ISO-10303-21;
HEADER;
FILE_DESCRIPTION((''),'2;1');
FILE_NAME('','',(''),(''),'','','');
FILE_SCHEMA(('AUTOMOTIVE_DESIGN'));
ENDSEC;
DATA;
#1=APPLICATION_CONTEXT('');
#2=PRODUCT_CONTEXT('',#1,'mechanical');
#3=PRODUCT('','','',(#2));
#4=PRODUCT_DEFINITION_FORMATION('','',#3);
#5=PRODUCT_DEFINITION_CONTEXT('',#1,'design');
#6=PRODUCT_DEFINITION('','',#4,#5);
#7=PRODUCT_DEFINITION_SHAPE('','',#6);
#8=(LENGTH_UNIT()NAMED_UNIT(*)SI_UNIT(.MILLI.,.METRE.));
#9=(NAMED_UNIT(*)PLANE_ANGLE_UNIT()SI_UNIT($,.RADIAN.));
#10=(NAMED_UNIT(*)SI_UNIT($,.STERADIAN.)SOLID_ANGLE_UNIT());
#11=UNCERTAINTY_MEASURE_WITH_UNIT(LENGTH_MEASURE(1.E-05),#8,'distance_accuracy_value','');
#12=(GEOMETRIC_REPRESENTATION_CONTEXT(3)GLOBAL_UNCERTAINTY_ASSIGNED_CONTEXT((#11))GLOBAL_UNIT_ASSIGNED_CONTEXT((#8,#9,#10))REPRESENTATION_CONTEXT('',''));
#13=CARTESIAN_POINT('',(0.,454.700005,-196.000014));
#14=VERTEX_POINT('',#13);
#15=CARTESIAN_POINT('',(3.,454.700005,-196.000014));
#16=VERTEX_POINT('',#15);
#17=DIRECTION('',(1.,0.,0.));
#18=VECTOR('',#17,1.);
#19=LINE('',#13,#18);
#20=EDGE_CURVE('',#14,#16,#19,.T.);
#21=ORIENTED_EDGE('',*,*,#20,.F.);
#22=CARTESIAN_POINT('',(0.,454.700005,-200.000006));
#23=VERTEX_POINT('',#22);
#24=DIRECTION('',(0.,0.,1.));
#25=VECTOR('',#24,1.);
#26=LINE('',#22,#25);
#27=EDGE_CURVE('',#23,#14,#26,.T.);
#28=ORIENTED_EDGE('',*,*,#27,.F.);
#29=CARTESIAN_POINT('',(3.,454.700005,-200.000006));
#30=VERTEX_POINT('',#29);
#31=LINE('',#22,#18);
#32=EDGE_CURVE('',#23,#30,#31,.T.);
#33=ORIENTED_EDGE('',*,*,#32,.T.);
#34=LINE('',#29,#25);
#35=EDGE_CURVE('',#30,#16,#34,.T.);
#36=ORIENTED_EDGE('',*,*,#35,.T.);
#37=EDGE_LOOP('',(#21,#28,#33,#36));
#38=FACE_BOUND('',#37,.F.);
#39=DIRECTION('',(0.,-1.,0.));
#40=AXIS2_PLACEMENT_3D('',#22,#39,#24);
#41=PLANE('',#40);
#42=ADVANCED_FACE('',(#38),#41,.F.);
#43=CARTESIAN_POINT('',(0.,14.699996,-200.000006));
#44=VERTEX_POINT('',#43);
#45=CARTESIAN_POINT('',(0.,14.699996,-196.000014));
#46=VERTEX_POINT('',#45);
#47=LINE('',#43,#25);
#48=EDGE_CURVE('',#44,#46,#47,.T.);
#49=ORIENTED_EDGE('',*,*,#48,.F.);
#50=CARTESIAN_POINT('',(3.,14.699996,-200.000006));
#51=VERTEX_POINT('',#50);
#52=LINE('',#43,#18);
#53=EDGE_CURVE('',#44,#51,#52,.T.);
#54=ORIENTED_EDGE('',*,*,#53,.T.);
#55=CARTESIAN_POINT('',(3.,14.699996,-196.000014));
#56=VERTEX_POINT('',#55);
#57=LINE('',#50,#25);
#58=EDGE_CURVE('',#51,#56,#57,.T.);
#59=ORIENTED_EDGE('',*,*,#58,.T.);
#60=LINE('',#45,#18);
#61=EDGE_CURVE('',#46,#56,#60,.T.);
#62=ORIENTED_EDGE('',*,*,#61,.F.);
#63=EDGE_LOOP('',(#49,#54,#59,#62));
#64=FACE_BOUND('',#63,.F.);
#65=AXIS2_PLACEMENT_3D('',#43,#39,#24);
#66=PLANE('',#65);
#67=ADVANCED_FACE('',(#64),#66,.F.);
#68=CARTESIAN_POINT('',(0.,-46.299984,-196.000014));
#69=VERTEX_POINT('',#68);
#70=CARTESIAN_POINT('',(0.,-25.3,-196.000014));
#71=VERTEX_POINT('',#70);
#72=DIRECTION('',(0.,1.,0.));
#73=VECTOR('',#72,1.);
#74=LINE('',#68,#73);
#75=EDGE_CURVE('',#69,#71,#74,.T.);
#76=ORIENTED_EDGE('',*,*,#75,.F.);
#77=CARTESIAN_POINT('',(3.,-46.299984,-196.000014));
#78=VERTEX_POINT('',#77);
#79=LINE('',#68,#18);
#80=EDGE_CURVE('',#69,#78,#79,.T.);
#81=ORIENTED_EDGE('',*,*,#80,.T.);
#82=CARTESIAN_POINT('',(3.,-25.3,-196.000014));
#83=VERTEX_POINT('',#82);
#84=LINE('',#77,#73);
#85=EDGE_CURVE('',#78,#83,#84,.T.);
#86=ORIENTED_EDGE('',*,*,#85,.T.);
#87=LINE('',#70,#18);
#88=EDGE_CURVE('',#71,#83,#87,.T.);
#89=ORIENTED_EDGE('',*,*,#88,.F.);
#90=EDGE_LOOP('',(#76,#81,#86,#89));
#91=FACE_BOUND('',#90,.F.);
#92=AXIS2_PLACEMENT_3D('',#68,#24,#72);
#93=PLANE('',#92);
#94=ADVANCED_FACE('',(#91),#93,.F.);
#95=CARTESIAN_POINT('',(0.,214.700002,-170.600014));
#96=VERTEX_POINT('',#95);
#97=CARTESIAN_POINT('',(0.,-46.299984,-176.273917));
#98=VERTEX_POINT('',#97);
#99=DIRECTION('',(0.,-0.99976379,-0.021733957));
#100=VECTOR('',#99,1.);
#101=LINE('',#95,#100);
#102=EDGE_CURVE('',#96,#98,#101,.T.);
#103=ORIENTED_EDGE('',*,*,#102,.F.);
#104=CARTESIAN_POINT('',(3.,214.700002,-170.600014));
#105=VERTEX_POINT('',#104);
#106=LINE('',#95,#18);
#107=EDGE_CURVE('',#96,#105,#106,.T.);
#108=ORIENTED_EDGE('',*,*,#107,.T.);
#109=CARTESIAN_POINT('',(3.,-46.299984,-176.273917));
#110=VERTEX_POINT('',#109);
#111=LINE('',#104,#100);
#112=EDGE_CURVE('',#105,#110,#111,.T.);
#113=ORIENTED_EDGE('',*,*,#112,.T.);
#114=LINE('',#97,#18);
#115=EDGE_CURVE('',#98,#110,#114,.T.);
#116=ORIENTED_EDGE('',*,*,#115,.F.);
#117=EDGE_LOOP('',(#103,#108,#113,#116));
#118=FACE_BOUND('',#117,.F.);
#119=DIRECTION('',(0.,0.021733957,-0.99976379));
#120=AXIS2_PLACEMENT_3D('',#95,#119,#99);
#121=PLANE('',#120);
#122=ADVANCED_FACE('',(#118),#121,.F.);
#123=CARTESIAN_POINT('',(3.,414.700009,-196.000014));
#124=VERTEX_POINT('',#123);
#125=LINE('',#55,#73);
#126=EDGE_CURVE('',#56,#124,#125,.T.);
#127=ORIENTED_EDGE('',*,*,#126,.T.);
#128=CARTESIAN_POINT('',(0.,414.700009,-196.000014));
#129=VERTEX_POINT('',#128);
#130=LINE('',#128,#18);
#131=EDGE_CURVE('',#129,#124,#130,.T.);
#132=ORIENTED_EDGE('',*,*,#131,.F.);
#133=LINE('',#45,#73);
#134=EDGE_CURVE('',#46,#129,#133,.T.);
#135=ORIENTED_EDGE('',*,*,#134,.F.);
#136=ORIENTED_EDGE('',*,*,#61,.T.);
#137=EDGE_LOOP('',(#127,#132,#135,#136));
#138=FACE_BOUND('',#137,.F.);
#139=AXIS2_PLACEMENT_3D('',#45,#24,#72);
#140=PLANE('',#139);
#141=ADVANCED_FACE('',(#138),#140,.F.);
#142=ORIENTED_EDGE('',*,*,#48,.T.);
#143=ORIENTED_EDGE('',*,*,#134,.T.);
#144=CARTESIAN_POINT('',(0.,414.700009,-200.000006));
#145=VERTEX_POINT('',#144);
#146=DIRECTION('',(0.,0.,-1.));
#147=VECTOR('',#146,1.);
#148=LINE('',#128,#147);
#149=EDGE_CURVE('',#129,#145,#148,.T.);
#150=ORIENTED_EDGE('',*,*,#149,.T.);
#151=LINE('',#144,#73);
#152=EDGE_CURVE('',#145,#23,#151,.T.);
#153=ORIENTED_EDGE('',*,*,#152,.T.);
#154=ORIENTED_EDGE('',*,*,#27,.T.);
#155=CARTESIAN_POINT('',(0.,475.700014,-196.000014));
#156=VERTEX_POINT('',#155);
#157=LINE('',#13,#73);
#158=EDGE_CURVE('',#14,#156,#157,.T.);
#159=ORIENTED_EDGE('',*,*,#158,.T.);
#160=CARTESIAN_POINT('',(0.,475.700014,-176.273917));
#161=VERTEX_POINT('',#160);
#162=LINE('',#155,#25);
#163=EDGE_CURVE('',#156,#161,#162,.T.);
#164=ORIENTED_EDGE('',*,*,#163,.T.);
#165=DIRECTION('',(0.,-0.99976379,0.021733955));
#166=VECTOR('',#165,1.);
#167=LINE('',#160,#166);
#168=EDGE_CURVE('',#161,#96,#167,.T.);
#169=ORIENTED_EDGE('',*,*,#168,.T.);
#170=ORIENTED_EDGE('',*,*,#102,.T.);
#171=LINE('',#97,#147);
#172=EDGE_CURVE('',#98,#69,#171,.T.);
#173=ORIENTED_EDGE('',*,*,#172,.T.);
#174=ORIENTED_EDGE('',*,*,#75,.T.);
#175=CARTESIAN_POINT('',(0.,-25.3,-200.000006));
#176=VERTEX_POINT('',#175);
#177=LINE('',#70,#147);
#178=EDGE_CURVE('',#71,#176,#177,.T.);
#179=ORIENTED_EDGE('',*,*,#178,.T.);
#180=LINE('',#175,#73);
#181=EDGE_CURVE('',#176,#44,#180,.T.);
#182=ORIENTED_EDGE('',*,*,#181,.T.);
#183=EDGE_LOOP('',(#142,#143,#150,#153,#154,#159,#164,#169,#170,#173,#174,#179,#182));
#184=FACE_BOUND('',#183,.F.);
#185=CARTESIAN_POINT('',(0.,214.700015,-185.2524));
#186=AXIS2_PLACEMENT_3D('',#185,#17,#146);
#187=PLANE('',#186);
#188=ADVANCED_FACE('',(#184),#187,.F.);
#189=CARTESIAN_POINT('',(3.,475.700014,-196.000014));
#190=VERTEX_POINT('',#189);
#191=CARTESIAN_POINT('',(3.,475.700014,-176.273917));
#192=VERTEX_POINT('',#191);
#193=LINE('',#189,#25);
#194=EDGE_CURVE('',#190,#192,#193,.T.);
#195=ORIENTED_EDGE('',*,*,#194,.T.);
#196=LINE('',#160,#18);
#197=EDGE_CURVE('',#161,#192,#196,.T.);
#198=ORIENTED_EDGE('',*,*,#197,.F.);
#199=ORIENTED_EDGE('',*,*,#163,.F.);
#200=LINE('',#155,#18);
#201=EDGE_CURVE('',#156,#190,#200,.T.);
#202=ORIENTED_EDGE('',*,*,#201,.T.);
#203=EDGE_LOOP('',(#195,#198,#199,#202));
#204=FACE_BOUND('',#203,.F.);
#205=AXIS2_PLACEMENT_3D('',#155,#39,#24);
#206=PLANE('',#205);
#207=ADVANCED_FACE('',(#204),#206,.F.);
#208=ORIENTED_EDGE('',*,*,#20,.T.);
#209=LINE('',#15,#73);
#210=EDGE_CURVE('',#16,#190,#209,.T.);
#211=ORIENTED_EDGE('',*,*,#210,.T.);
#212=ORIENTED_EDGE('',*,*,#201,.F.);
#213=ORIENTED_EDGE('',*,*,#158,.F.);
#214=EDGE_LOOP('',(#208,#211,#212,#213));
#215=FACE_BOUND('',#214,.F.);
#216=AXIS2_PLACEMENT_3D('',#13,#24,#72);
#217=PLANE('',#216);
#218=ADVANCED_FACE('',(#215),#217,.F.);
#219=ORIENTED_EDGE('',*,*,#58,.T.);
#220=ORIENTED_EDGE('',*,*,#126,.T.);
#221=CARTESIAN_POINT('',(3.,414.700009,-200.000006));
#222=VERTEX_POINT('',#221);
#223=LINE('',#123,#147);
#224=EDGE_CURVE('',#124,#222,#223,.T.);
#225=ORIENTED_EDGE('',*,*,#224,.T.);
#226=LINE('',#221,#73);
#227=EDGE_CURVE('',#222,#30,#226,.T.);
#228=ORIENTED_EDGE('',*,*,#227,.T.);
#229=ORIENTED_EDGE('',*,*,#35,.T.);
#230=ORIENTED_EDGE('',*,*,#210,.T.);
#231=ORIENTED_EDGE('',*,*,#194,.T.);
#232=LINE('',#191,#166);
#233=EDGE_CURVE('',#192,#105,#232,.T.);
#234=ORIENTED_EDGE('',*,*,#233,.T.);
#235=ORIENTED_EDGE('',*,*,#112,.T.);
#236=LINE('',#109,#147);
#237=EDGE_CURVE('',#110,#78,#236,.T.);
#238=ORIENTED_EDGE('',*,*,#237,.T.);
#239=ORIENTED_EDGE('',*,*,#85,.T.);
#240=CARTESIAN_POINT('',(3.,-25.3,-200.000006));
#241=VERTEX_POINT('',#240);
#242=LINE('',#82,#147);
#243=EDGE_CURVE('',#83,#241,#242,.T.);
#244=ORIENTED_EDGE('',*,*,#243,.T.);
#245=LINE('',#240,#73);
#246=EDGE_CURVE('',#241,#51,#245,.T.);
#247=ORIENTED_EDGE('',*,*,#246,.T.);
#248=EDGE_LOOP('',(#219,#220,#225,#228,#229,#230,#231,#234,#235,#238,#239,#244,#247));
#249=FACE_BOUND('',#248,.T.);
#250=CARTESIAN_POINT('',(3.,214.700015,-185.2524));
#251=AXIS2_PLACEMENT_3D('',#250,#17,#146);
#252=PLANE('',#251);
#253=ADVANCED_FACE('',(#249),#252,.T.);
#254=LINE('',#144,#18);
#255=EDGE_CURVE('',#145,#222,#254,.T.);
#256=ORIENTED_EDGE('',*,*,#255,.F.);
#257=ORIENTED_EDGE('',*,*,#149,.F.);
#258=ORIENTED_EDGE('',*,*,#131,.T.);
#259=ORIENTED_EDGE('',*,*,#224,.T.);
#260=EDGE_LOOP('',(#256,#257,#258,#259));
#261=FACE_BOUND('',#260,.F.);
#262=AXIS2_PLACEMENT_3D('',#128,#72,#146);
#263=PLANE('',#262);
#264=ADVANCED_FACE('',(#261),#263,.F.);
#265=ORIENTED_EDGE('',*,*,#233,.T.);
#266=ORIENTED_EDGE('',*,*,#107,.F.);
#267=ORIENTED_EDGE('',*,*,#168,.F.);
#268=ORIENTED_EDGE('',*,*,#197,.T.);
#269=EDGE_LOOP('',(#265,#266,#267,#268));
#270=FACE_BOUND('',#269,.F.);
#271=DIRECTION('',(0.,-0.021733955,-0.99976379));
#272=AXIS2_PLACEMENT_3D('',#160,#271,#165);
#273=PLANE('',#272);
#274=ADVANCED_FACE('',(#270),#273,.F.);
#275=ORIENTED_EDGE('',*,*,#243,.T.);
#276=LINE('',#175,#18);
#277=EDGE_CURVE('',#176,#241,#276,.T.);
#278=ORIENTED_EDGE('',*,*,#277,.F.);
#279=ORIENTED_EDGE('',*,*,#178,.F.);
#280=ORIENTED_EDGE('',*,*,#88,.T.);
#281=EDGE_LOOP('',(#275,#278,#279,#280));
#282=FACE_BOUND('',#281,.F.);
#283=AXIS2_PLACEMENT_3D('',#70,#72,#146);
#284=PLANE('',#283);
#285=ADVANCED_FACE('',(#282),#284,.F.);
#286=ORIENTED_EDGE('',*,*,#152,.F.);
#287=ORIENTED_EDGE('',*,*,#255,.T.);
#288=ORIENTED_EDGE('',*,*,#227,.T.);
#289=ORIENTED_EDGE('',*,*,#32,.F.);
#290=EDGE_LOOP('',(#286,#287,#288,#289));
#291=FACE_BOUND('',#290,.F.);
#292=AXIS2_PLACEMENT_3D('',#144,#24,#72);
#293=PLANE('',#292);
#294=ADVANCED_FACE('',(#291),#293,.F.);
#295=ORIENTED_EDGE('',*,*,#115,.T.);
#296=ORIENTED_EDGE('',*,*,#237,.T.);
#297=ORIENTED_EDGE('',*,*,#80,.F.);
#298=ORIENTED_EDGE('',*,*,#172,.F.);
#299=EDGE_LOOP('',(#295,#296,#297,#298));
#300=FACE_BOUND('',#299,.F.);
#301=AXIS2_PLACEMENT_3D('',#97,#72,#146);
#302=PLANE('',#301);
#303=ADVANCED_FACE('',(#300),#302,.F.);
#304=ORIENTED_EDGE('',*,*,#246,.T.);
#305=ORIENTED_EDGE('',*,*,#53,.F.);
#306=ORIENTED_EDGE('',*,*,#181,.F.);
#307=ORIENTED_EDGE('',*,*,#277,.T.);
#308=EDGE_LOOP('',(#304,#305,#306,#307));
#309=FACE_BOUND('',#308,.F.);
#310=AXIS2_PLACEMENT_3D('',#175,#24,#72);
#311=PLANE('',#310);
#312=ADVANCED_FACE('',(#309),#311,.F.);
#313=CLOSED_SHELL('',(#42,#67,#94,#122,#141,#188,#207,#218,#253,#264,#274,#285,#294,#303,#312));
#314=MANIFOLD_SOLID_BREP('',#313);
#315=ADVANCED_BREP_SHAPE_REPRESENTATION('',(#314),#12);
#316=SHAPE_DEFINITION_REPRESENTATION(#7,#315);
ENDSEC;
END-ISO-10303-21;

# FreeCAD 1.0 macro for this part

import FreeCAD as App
import Part
import Sketcher
from FreeCAD import Vector
Q = App.Units.Quantity


def add_polygon(sketch, points):
    """Adds a closed chain of lines whose ends are joined by coincident constraints."""
    first, n = sketch.GeometryCount, len(points)
    for a, b in zip(points, points[1:] + points[:1]):
        sketch.addGeometry(Part.LineSegment(App.Vector(*a, 0), App.Vector(*b, 0)), False)
    for i in range(n):
        sketch.addConstraint(Sketcher.Constraint("Coincident", first + i, 2, first + (i + 1) % n, 1))

doc = App.newDocument("Part")
body = doc.addObject("PartDesign::Body", "Body")

# Sketch on YZ plane
sketch1 = body.newObject("Sketcher::SketchObject", "Sketch")
sketch1.AttachmentSupport = (doc.getObject("YZ_Plane"), [""])
sketch1.MapMode = "FlatFace"
add_polygon(sketch1, [(-9, 261), (-14.7, 0), (-9, -261), (10.7, -261), (10.7, -240), (14.7, -240), (14.7, -200), (10.7, -200), (10.7, 200), (14.7, 200), (14.7, 240), (10.7, 240), (10.7, 261)])  # lines 0-12
sketch1.addConstraint([
    Sketcher.Constraint("Horizontal", 2),
    Sketcher.Constraint("Vertical", 3),
    Sketcher.Constraint("Horizontal", 4),
    Sketcher.Constraint("Vertical", 5),
    Sketcher.Constraint("Horizontal", 6),
    Sketcher.Constraint("Vertical", 7),
    Sketcher.Constraint("Horizontal", 8),
    Sketcher.Constraint("Vertical", 9),
    Sketcher.Constraint("Horizontal", 10),
    Sketcher.Constraint("Vertical", 11),
    Sketcher.Constraint("Horizontal", 12),
    Sketcher.Constraint("Symmetric", 5, 2, 8, 2, -1),
    Sketcher.Constraint("Symmetric", 3, 2, 10, 2, -1),
    Sketcher.Constraint("PointOnObject", 0, 2, -1),
    Sketcher.Constraint("Vertical", 3, 2, 6, 2),
    Sketcher.Constraint("Vertical", 1, 2, 12, 2),
    Sketcher.Constraint("DistanceX", 0, 2, 2, 2, Q("25.4 mm")),
    Sketcher.Constraint("DistanceY", 11, 1, 11, 2, Q("21.000009 mm")),
    Sketcher.Constraint("Distance", 1, Q("261.061651 mm")),
    Sketcher.Constraint("DistanceX", 2, 1, 2, 2, Q("19.726097 mm")),
    Sketcher.Constraint("DistanceX", 4, 1, 4, 2, Q("3.999992 mm")),
    Sketcher.Constraint("DistanceY", 3, 1, 3, 2, Q("20.999983 mm")),
    Sketcher.Constraint("DistanceY", 5, 1, 5, 2, Q("39.999996 mm")),
    Sketcher.Constraint("DistanceX", 0, 2, -1, 1, Q("14.699996 mm")),
])
pad1 = body.newObject("PartDesign::Pad", "Pad")
pad1.Profile = sketch1
pad1.Length = 3
body2 = doc.addObject("PartDesign::Body", "Body001")
doc.recompute()

body.Placement = App.Placement(Vector(0, 214.700002, -185.30001), App.Rotation(Vector(-1, 0, 0), 90))
boolean = body2.newObject("PartDesign::Boolean", "Boolean")
boolean.Type = "Fuse"
boolean.addObjects([body])

doc.recompute()
